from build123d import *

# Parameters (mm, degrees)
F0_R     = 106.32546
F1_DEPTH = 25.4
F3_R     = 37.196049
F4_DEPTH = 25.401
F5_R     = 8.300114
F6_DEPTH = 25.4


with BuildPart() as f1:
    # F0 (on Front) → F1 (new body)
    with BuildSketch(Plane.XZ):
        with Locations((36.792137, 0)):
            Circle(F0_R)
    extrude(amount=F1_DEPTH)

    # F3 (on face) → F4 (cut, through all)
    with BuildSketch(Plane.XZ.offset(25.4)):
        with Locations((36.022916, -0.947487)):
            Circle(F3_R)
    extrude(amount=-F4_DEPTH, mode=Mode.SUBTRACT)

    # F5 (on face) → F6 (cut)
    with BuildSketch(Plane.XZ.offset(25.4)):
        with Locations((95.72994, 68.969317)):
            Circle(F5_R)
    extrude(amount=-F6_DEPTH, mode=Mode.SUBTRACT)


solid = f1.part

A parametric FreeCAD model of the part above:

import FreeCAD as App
import Part
import Sketcher
Q = App.Units.Quantity

doc = App.newDocument("Part")
body = doc.addObject("PartDesign::Body", "Body")

sketch1 = doc.addObject("Sketcher::SketchObject", "Sketch")
body.addObject(sketch1)
sketch1.AttachmentSupport = (doc.XZ_Plane, [""])
sketch1.MapMode = "FlatFace"
sketch1.addGeometry(Part.Circle(App.Vector(37, 0, 0), App.Vector(0, 0, 1), 106), False)
sketch1.addConstraint([
    Sketcher.Constraint("PointOnObject", 0, 3, -1),
    Sketcher.Constraint("Diameter", 0, 212.65092),
    Sketcher.Constraint("DistanceX", -1, 1, 0, 3, 36.792137),
])
pad1 = doc.addObject("PartDesign::Pad", "Pad")
body.addObject(pad1)
pad1.Profile = sketch1
pad1.Length = Q("1 in")

sketch2 = doc.addObject("Sketcher::SketchObject", "Sketch001")
body.addObject(sketch2)
sketch2.AttachmentSupport = (doc.XZ_Plane, [""])
sketch2.MapMode = "FlatFace"
sketch2.AttachmentOffset = App.Placement(App.Vector(0, 0, 1 * 25.4), App.Rotation())
sketch2.addGeometry(Part.Circle(App.Vector(36, -1, 0), App.Vector(0, 0, 1), 37), False)
sketch2.addConstraint([
    Sketcher.Constraint("Diameter", 0, 74.392098),
    Sketcher.Constraint("DistanceX", -1, 1, 0, 3, 36.022916),
    Sketcher.Constraint("DistanceY", 0, 3, -1, 1, 0.947487),
])
pocket1 = doc.addObject("PartDesign::Pocket", "Pocket")
body.addObject(pocket1)
pocket1.Profile = sketch2
pocket1.Type = "ThroughAll"

sketch3 = doc.addObject("Sketcher::SketchObject", "Sketch002")
body.addObject(sketch3)
sketch3.AttachmentSupport = (doc.XZ_Plane, [""])
sketch3.MapMode = "FlatFace"
sketch3.AttachmentOffset = App.Placement(App.Vector(0, 0, 1 * 25.4), App.Rotation())
sketch3.addGeometry(Part.Circle(App.Vector(96, 69, 0), App.Vector(0, 0, 1), 8), False)
sketch3.addConstraint([
    Sketcher.Constraint("Diameter", 0, 16.600228),
    Sketcher.Constraint("DistanceX", -1, 1, 0, 3, 95.72994),
    Sketcher.Constraint("DistanceY", -1, 1, 0, 3, 68.969317),
])
pocket2 = doc.addObject("PartDesign::Pocket", "Pocket001")
body.addObject(pocket2)
pocket2.Profile = sketch3
pocket2.Length = Q("1 in")

doc.recompute()
